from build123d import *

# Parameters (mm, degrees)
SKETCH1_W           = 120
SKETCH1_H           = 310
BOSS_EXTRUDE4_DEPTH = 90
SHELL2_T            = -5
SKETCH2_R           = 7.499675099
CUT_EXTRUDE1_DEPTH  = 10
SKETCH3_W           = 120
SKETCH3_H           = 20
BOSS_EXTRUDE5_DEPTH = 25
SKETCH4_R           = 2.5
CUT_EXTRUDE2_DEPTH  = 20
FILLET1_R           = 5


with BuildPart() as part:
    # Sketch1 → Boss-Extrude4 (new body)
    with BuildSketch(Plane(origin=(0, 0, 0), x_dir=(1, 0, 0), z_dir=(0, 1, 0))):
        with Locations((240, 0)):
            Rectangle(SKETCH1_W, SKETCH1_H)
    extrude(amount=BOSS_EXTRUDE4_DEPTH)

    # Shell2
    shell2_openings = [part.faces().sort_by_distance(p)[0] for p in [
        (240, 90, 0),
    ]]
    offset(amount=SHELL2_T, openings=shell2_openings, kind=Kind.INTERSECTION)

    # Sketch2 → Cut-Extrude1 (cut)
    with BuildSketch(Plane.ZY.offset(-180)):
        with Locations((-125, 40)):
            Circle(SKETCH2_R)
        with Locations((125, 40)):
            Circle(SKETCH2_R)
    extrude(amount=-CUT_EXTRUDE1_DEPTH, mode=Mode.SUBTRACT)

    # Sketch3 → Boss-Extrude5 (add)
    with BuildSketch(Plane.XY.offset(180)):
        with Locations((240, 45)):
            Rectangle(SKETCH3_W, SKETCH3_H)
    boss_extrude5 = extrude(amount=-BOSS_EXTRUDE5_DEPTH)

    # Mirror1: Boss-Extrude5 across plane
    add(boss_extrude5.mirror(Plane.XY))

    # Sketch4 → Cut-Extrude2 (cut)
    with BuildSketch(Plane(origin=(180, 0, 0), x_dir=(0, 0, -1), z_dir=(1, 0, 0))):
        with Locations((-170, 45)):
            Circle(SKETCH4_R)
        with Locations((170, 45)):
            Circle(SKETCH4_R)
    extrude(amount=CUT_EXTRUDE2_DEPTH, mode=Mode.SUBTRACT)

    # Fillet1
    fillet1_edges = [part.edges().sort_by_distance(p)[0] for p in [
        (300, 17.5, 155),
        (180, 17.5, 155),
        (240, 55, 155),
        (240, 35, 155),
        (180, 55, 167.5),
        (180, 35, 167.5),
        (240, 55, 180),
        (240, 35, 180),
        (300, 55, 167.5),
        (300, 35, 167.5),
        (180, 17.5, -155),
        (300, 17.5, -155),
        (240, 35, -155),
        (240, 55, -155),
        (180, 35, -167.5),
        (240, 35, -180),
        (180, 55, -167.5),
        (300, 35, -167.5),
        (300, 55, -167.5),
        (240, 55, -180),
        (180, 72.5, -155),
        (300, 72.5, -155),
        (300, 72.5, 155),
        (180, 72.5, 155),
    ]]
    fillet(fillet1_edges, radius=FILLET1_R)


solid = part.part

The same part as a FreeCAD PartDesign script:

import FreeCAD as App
import Part
import Sketcher
Q = App.Units.Quantity


def edges_at(feature, points):
    """Names of the edges that pass closest to the given points."""
    edges = feature.Shape.Edges
    near = lambda p: min(range(len(edges)), key=lambda i: edges[i].distToShape(Part.Vertex(*p))[0])
    return sorted({f"Edge{near(p) + 1}" for p in points})


def faces_at(feature, points):
    """Names of the faces that lie closest to the given points."""
    faces = feature.Shape.Faces
    near = lambda p: min(range(len(faces)), key=lambda i: faces[i].distToShape(Part.Vertex(*p))[0])
    return sorted({f"Face{near(p) + 1}" for p in points})


def add_polygon(sketch, points):
    """Adds a closed chain of lines whose ends are joined by coincident constraints."""
    first, n = sketch.GeometryCount, len(points)
    for a, b in zip(points, points[1:] + points[:1]):
        sketch.addGeometry(Part.LineSegment(App.Vector(*a, 0), App.Vector(*b, 0)), False)
    for i in range(n):
        sketch.addConstraint(Sketcher.Constraint("Coincident", first + i, 2, first + (i + 1) % n, 1))

doc = App.newDocument("Part")
body = doc.addObject("PartDesign::Body", "Body")

# Sketch on XZ plane
sketch1 = body.newObject("Sketcher::SketchObject", "Sketch")
sketch1.AttachmentSupport = (doc.getObject("XZ_Plane"), [""])
sketch1.MapMode = "FlatFace"
add_polygon(sketch1, [(180, -155), (180, 155), (300, 155), (300, -155)])  # lines 0-3
sketch1.addConstraint(Sketcher.Constraint("Vertical", 0))
sketch1.addConstraint(Sketcher.Constraint("Horizontal", 1))
sketch1.addConstraint(Sketcher.Constraint("Vertical", 2))
sketch1.addConstraint(Sketcher.Constraint("Horizontal", 3))
sketch1.addConstraint(Sketcher.Constraint("DistanceX", 1, 1, 1, 2, Q("120 mm")))
sketch1.addConstraint(Sketcher.Constraint("DistanceY", 0, 1, 0, 2, Q("310 mm")))
sketch1.addConstraint(Sketcher.Constraint("DistanceX", -1, 1, 0, 2, Q("180 mm")))
sketch1.addConstraint(Sketcher.Constraint("DistanceY", -1, 1, 0, 2, Q("155 mm")))
pad1 = body.newObject("PartDesign::Pad", "Pad")
pad1.Profile = sketch1
pad1.Length = 90
pad1.Reversed = True
doc.recompute()

thickness = body.newObject("PartDesign::Thickness", "Thickness")
thickness.Base = (pad1, faces_at(pad1, [(240, 90, 0)]))
thickness.Value = 5
thickness.Reversed = True
thickness.Join = "Intersection"

# Sketch on YZ plane
sketch2 = body.newObject("Sketcher::SketchObject", "Sketch001")
sketch2.AttachmentSupport = (doc.getObject("YZ_Plane"), [""])
sketch2.MapMode = "FlatFace"
sketch2.AttachmentOffset = App.Placement(App.Vector(0, 0, 180), App.Rotation())
sketch2.addGeometry(Part.Circle(App.Vector(40, -125, 0), App.Vector(0, 0, 1), 7.499675), False)
sketch2.addGeometry(Part.Circle(App.Vector(40, 125, 0), App.Vector(0, 0, 1), 7.499675), False)
sketch2.addConstraint(Sketcher.Constraint("Equal", 0, 1))
sketch2.addConstraint(Sketcher.Constraint("Symmetric", 0, 3, 1, 3, -1))
sketch2.addConstraint(Sketcher.Constraint("DistanceX", -1, 1, 0, 3, Q("40 mm")))
sketch2.addConstraint(Sketcher.Constraint("DistanceY", 0, 3, -1, 1, Q("125 mm")))
sketch2.addConstraint(Sketcher.Constraint("Diameter", 0, Q("14.99935 mm")))
pocket1 = body.newObject("PartDesign::Pocket", "Pocket")
pocket1.Profile = sketch2
pocket1.Length = 10
pocket1.Reversed = True

# Sketch on XY plane
sketch3 = body.newObject("Sketcher::SketchObject", "Sketch002")
sketch3.AttachmentSupport = (doc.getObject("XY_Plane"), [""])
sketch3.MapMode = "FlatFace"
sketch3.AttachmentOffset = App.Placement(App.Vector(0, 0, 180), App.Rotation())
add_polygon(sketch3, [(180, 55), (180, 35), (300, 35), (300, 55)])  # lines 0-3
sketch3.addConstraint(Sketcher.Constraint("Vertical", 0))
sketch3.addConstraint(Sketcher.Constraint("Horizontal", 1))
sketch3.addConstraint(Sketcher.Constraint("Vertical", 2))
sketch3.addConstraint(Sketcher.Constraint("Horizontal", 3))
sketch3.addConstraint(Sketcher.Constraint("DistanceX", 1, 1, 1, 2, Q("120 mm")))
sketch3.addConstraint(Sketcher.Constraint("DistanceY", 0, 2, 0, 1, Q("20 mm")))
sketch3.addConstraint(Sketcher.Constraint("DistanceX", -1, 1, 0, 2, Q("180 mm")))
sketch3.addConstraint(Sketcher.Constraint("DistanceY", -1, 1, 0, 2, Q("35 mm")))
pad2 = body.newObject("PartDesign::Pad", "Pad001")
pad2.Profile = sketch3
pad2.Length = 25
pad2.Reversed = True
doc.recompute()

mirrored = body.newObject("PartDesign::Mirrored", "Mirrored")
mirrored.Originals = [pad2]
mirrored.MirrorPlane = (doc.getObject("XY_Plane"), [""])
body.Tip = mirrored

# Sketch on YZ plane
sketch4 = body.newObject("Sketcher::SketchObject", "Sketch003")
sketch4.AttachmentSupport = (doc.getObject("YZ_Plane"), [""])
sketch4.MapMode = "FlatFace"
sketch4.AttachmentOffset = App.Placement(App.Vector(0, 0, 180), App.Rotation())
sketch4.addGeometry(Part.Circle(App.Vector(45, 170, 0), App.Vector(0, 0, 1), 2.5), False)
sketch4.addGeometry(Part.Circle(App.Vector(45, -170, 0), App.Vector(0, 0, 1), 2.5), False)
sketch4.addConstraint(Sketcher.Constraint("Equal", 0, 1))
sketch4.addConstraint(Sketcher.Constraint("Symmetric", 0, 3, 1, 3, -1))
sketch4.addConstraint(Sketcher.Constraint("Diameter", 0, Q("5 mm")))
sketch4.addConstraint(Sketcher.Constraint("DistanceX", -1, 1, 0, 3, Q("45 mm")))
sketch4.addConstraint(Sketcher.Constraint("DistanceY", -1, 1, 0, 3, Q("170 mm")))
pocket2 = body.newObject("PartDesign::Pocket", "Pocket001")
pocket2.Profile = sketch4
pocket2.Length = 20
pocket2.Reversed = True
doc.recompute()

fillet = body.newObject("PartDesign::Fillet", "Fillet")
fillet.Base = (pocket2, edges_at(pocket2, [
    (300, 17.5, 155),
    (180, 17.5, 155),
    (240, 55, 155),
    (240, 35, 155),
    (180, 55, 167.5),
    (180, 35, 167.5),
    (240, 55, 180),
    (240, 35, 180),
    (300, 55, 167.5),
    (300, 35, 167.5),
    (180, 17.5, -155),
    (300, 17.5, -155),
    (240, 35, -155),
    (240, 55, -155),
    (180, 35, -167.5),
    (240, 35, -180),
    (180, 55, -167.5),
    (300, 35, -167.5),
    (300, 55, -167.5),
    (240, 55, -180),
    (180, 72.5, -155),
    (300, 72.5, -155),
    (300, 72.5, 155),
    (180, 72.5, 155),
]))
fillet.Radius = 5

doc.recompute()
